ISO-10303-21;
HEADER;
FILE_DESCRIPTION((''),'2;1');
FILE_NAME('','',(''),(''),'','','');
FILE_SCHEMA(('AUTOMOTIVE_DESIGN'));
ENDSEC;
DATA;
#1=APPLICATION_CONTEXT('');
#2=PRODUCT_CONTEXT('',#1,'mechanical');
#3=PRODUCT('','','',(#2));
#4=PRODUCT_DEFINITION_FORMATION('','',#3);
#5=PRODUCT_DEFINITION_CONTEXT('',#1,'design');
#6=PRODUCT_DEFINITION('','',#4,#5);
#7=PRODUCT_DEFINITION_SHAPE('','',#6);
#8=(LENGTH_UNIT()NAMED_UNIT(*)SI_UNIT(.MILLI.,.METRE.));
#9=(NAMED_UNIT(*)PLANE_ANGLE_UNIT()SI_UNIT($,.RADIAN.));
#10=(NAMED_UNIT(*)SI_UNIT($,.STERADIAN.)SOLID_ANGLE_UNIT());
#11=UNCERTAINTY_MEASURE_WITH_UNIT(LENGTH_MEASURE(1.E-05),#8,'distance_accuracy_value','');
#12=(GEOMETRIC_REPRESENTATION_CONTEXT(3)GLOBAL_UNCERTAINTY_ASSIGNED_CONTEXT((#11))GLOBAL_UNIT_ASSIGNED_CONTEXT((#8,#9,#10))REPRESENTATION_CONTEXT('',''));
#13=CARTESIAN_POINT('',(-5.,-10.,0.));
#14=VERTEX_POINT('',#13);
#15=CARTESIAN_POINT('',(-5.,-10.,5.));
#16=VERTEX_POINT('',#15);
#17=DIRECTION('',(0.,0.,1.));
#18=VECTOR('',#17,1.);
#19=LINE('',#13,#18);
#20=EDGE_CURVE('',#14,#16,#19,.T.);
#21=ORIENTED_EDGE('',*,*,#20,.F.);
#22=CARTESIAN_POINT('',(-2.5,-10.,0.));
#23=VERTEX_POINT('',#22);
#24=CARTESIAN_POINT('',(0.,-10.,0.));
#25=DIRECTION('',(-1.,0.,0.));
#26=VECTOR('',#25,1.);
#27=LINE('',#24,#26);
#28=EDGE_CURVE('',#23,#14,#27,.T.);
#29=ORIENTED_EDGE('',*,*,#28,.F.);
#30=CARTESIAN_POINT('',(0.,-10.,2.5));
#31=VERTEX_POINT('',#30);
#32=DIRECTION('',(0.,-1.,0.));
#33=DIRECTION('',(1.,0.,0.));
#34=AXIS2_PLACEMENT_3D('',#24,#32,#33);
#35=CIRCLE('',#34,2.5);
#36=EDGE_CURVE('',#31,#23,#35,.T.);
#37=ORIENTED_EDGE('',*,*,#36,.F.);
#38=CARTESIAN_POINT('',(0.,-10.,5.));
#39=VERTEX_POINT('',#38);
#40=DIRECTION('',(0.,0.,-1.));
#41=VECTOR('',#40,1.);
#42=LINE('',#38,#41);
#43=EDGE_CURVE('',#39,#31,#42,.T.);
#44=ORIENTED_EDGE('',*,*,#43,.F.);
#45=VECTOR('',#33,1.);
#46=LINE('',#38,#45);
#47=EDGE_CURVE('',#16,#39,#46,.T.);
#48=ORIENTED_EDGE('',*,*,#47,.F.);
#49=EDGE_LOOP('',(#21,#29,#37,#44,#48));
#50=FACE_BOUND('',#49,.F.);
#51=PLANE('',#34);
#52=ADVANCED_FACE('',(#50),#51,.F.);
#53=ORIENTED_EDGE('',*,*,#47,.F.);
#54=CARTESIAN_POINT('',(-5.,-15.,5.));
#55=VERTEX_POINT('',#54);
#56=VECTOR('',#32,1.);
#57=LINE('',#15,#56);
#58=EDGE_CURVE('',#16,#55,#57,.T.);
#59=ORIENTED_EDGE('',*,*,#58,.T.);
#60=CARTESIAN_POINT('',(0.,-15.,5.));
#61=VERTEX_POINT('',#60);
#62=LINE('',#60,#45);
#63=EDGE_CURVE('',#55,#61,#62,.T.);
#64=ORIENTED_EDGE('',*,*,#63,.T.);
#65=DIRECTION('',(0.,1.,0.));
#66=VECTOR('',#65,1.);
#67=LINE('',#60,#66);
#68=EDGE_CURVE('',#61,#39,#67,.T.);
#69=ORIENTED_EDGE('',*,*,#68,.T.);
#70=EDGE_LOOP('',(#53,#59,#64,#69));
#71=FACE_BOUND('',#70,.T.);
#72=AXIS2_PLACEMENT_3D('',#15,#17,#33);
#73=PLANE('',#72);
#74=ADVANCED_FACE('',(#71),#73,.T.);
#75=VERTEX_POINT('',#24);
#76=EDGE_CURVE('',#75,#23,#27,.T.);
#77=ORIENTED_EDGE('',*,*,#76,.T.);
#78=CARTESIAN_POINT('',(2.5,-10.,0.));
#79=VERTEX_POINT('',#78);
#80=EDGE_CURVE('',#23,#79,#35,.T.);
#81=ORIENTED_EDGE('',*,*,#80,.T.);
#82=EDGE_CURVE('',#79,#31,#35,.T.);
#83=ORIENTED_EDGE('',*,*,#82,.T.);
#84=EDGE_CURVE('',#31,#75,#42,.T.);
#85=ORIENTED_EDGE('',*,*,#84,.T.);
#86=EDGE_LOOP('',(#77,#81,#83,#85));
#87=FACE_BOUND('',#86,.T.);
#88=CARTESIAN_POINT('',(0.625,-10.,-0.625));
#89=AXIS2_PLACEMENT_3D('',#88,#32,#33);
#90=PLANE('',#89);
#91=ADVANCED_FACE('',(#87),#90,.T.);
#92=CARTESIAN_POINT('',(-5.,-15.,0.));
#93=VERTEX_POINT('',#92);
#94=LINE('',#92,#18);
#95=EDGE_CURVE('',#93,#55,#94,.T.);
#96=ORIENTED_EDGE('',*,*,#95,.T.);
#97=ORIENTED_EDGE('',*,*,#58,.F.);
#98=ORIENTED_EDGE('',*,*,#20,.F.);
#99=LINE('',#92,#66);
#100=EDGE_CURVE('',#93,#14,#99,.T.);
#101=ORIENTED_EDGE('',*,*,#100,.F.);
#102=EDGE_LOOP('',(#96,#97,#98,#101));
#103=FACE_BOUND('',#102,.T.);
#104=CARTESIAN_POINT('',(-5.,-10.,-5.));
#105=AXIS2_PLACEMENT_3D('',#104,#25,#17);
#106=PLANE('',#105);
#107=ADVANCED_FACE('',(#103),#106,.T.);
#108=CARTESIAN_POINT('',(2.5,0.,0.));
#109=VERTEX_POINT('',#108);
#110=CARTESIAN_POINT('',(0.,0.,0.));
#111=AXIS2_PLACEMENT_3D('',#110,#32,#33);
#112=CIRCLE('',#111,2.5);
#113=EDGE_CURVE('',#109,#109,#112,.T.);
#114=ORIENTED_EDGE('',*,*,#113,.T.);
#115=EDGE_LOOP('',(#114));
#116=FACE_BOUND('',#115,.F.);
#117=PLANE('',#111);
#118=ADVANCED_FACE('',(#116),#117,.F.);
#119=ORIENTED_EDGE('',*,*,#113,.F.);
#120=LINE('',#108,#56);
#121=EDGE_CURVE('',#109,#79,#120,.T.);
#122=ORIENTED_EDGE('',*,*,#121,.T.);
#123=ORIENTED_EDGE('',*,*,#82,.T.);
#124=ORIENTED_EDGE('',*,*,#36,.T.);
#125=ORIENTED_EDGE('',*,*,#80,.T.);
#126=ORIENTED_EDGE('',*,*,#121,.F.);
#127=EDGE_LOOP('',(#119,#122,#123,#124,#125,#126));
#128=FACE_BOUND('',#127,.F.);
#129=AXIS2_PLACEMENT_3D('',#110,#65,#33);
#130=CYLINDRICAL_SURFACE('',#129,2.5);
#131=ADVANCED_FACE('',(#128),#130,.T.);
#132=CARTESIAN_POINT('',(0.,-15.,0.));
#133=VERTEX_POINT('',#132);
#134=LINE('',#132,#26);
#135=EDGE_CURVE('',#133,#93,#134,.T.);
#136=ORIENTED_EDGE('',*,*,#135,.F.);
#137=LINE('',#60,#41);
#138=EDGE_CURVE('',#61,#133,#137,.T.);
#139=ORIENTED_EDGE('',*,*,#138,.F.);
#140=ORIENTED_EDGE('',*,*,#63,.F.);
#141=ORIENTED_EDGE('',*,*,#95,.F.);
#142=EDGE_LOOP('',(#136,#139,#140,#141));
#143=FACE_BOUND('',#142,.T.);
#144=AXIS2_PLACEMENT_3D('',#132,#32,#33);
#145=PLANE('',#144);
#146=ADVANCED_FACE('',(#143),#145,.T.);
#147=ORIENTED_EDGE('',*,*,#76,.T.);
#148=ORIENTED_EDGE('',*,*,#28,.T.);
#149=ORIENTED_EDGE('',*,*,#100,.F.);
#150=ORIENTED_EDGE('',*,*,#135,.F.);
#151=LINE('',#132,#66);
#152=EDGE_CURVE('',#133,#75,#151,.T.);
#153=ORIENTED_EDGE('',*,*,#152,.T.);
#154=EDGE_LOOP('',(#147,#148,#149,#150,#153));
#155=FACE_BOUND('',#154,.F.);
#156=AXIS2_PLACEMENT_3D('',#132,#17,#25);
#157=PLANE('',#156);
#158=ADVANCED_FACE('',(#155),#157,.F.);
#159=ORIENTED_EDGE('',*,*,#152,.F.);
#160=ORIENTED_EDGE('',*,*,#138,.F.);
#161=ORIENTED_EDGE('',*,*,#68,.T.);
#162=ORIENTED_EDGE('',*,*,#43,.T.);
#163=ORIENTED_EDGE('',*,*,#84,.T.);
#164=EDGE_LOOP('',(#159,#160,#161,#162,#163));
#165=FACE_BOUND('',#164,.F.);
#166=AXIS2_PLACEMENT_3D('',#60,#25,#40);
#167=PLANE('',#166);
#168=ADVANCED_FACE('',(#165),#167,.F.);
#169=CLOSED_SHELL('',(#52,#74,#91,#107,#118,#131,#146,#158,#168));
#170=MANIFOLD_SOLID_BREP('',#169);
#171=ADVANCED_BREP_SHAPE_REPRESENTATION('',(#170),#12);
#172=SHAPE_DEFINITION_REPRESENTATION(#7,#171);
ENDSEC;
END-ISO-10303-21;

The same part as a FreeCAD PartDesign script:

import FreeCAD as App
import Part
import Sketcher
Q = App.Units.Quantity


def add_polygon(sketch, points):
    """Adds a closed chain of lines whose ends are joined by coincident constraints."""
    first, n = sketch.GeometryCount, len(points)
    for a, b in zip(points, points[1:] + points[:1]):
        sketch.addGeometry(Part.LineSegment(App.Vector(*a, 0), App.Vector(*b, 0)), False)
    for i in range(n):
        sketch.addConstraint(Sketcher.Constraint("Coincident", first + i, 2, first + (i + 1) % n, 1))

doc = App.newDocument("Part")
params = doc.addObject("Spreadsheet::Sheet", "Params")
for row, (alias, value) in enumerate([
    ("sketch1_diameter", "5 mm"),
    ("pad1_length", "10 mm"),
    ("sketch2_width", "10 mm"),
    ("pad2_length", "5 mm"),
    ("sketch3_width", "5 mm"),
    ("pocket1_length", "5 mm"),
], start=1):
    params.set(f"A{row}", alias)
    params.set(f"B{row}", "=" + value)
    params.setAlias(f"B{row}", alias)

body = doc.addObject("PartDesign::Body", "Body")

# Sketch on XZ plane
sketch1 = body.newObject("Sketcher::SketchObject", "Sketch")
sketch1.AttachmentSupport = (doc.getObject("XZ_Plane"), [""])
sketch1.MapMode = "FlatFace"
sketch1.addGeometry(Part.Circle(App.Vector(0, 0, 0), App.Vector(0, 0, 1), 2.5), False)
sketch1.addConstraint(Sketcher.Constraint("Coincident", 0, 3, -1, 1))
sketch1.addConstraint(Sketcher.Constraint("Diameter", 0, Q("5 mm")))
sketch1.setExpression("Constraints[1]", "Params.sketch1_diameter")
pad1 = body.newObject("PartDesign::Pad", "Pad")
pad1.Profile = sketch1
pad1.setExpression("Length", "Params.pad1_length")

# Sketch on XZ plane
sketch2 = body.newObject("Sketcher::SketchObject", "Sketch001")
sketch2.AttachmentSupport = (doc.getObject("XZ_Plane"), [""])
sketch2.MapMode = "FlatFace"
sketch2.AttachmentOffset = App.Placement(App.Vector(0, 0, 10), App.Rotation())
add_polygon(sketch2, [(-5, 5), (-5, -5), (5, -5), (5, 5)])  # lines 0-3
sketch2.addConstraint(Sketcher.Constraint("Vertical", 0))
sketch2.addConstraint(Sketcher.Constraint("Horizontal", 1))
sketch2.addConstraint(Sketcher.Constraint("Vertical", 2))
sketch2.addConstraint(Sketcher.Constraint("Horizontal", 3))
sketch2.addConstraint(Sketcher.Constraint("Symmetric", 0, 2, 2, 2, -1, 1))
sketch2.addConstraint(Sketcher.Constraint("Equal", 3, 0))
sketch2.addConstraint(Sketcher.Constraint("DistanceX", 1, 1, 1, 2, Q("10 mm")))
sketch2.setExpression("Constraints[10]", "Params.sketch2_width")
pad2 = body.newObject("PartDesign::Pad", "Pad001")
pad2.Profile = sketch2
pad2.setExpression("Length", "Params.pad2_length")

# Sketch on XZ plane
sketch3 = body.newObject("Sketcher::SketchObject", "Sketch002")
sketch3.AttachmentSupport = (doc.getObject("XZ_Plane"), [""])
sketch3.MapMode = "FlatFace"
sketch3.AttachmentOffset = App.Placement(App.Vector(0, 0, 15), App.Rotation())
add_polygon(sketch3, [(0, 5), (0, 0), (-5, 0), (-5, -5), (5, -5), (5, 5)])  # lines 0-5
sketch3.addConstraint(Sketcher.Constraint("Vertical", 0))
sketch3.addConstraint(Sketcher.Constraint("Horizontal", 1))
sketch3.addConstraint(Sketcher.Constraint("Vertical", 2))
sketch3.addConstraint(Sketcher.Constraint("Horizontal", 3))
sketch3.addConstraint(Sketcher.Constraint("Vertical", 4))
sketch3.addConstraint(Sketcher.Constraint("Horizontal", 5))
sketch3.addConstraint(Sketcher.Constraint("Coincident", 0, 2, -1, 1))
sketch3.addConstraint(Sketcher.Constraint("Symmetric", 2, 2, 4, 2, -1, 1))
sketch3.addConstraint(Sketcher.Constraint("Equal", 5, 0))
sketch3.addConstraint(Sketcher.Constraint("DistanceX", 1, 2, 1, 1, Q("5 mm")))
sketch3.setExpression("Constraints[15]", "Params.sketch3_width")
pocket1 = body.newObject("PartDesign::Pocket", "Pocket")
pocket1.Profile = sketch3
pocket1.setExpression("Length", "Params.pocket1_length")

doc.recompute()
